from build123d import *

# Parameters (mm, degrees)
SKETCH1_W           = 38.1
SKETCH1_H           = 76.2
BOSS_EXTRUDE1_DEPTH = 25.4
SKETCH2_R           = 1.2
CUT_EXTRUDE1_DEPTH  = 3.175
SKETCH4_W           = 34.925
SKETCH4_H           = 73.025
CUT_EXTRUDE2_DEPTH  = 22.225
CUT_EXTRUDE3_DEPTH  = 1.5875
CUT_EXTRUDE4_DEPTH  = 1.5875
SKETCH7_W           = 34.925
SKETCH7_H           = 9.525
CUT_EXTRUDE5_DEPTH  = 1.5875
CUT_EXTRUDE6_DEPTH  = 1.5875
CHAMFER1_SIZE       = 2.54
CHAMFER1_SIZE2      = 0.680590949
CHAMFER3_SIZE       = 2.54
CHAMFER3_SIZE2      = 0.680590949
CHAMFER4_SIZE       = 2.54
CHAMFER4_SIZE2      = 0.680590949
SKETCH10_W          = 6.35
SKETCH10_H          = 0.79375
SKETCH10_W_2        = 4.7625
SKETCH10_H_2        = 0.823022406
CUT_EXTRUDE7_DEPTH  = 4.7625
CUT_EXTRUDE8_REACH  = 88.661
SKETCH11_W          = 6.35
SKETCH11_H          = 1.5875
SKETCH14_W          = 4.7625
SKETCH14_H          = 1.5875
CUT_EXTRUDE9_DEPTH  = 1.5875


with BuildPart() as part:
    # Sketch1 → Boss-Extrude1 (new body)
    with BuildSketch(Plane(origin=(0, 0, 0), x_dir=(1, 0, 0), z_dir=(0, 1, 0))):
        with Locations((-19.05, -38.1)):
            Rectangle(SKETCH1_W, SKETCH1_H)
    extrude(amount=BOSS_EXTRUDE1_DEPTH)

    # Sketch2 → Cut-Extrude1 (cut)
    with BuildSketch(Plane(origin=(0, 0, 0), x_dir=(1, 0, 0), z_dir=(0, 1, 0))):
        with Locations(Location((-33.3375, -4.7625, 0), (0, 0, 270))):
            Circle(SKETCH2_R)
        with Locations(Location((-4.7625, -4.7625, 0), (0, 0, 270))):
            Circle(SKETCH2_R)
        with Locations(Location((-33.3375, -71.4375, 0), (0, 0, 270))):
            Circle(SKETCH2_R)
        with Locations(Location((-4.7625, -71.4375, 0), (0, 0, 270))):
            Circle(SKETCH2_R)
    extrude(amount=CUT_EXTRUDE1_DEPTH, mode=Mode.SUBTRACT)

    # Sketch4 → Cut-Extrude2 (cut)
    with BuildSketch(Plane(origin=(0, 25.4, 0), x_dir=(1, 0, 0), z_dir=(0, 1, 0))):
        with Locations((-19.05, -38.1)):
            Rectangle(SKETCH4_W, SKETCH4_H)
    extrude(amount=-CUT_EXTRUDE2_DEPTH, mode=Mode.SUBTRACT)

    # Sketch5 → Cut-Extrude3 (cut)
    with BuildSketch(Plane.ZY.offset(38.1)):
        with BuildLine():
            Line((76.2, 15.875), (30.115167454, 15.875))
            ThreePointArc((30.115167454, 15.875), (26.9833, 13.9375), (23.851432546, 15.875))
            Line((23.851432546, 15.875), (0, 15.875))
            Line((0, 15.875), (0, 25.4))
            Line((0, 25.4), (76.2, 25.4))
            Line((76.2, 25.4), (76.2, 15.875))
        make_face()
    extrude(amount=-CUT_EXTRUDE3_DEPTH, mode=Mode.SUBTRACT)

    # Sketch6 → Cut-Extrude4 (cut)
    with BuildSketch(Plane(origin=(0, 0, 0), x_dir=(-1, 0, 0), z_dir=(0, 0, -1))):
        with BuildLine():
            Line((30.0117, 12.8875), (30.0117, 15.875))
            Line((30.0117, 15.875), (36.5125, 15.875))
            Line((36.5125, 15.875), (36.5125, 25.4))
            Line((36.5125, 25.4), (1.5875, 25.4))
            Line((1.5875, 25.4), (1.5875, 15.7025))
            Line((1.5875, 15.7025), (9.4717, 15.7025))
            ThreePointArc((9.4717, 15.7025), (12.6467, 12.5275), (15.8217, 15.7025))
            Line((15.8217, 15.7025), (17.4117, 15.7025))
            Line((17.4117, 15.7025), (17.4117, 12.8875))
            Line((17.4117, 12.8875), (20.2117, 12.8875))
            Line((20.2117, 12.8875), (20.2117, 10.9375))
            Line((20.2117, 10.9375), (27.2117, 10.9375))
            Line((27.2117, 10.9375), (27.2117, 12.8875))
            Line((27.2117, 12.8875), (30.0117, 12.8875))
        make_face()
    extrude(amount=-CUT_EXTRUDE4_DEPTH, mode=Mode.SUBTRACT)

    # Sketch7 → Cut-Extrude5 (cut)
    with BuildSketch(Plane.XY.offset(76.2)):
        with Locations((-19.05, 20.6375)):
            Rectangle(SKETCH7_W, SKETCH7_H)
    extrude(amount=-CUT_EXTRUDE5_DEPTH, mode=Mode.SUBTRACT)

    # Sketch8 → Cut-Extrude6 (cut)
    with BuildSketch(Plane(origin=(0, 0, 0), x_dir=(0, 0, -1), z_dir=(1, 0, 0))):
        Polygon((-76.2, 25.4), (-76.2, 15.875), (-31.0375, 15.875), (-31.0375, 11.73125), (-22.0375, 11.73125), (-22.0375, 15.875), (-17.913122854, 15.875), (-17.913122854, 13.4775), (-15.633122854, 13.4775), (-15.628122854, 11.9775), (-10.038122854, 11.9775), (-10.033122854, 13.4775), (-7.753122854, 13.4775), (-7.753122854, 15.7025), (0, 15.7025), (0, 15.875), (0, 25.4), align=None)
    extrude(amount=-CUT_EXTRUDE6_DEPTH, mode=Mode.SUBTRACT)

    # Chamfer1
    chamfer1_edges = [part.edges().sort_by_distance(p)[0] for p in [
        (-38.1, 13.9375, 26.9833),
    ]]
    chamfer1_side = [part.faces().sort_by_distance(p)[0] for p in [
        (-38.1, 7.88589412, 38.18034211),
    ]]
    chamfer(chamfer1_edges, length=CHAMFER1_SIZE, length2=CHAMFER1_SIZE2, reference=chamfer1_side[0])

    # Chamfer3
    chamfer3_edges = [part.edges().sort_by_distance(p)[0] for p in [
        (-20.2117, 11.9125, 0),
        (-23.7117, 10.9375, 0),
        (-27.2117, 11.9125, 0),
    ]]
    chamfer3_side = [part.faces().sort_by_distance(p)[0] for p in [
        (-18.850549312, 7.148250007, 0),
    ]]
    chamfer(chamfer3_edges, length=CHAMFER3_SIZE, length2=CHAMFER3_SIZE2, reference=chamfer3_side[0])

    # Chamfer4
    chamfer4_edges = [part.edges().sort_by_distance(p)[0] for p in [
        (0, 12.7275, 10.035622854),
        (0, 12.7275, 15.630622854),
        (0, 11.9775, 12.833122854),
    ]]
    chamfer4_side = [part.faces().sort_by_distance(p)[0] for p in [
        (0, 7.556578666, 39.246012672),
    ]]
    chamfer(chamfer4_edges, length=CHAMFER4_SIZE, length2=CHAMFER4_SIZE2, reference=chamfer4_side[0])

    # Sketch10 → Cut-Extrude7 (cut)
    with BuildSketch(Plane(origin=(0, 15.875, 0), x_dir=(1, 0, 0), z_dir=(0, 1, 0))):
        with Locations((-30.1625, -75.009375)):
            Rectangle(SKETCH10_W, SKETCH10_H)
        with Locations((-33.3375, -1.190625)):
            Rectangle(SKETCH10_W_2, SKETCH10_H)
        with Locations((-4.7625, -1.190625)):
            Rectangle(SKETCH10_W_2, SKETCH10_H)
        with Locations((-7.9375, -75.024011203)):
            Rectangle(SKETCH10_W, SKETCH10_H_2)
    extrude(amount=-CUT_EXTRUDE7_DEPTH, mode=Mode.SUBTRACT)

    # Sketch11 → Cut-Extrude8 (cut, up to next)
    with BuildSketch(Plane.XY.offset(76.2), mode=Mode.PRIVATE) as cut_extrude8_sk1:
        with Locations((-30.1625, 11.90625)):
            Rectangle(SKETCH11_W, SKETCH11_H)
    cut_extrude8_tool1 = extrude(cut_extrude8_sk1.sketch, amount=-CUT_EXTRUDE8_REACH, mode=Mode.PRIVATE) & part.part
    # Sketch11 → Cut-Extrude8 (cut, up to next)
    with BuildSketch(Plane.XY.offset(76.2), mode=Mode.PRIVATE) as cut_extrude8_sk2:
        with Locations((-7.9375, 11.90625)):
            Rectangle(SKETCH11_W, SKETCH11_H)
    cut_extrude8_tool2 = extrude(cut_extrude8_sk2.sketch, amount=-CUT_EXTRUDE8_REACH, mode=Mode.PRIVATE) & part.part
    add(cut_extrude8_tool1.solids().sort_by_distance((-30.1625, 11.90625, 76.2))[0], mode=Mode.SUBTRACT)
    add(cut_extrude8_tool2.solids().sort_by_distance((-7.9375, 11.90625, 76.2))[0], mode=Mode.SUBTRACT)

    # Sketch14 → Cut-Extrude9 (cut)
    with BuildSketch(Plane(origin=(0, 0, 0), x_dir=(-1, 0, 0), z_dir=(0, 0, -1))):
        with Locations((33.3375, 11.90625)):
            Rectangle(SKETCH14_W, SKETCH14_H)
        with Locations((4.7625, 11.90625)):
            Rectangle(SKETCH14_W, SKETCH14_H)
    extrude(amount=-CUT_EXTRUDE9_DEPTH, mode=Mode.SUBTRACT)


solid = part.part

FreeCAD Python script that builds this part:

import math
import FreeCAD as App
import Part
import Sketcher
Q = App.Units.Quantity


def edges_at(feature, points):
    """Names of the edges that pass closest to the given points."""
    edges = feature.Shape.Edges
    near = lambda p: min(range(len(edges)), key=lambda i: edges[i].distToShape(Part.Vertex(*p))[0])
    return sorted({f"Edge{near(p) + 1}" for p in points})

doc = App.newDocument("Part")
body = doc.addObject("PartDesign::Body", "Body")

# Sketch on XZ plane
sketch1 = body.newObject("Sketcher::SketchObject", "Sketch")
sketch1.AttachmentSupport = (doc.getObject("XZ_Plane"), [""])
sketch1.MapMode = "FlatFace"
sketch1.addGeometry(Part.LineSegment(App.Vector(-38.1, 0, 0), App.Vector(-38.1, 76.2, 0)), False)
sketch1.addGeometry(Part.LineSegment(App.Vector(-38.1, 76.2, 0), App.Vector(0, 76.2, 0)), False)
sketch1.addGeometry(Part.LineSegment(App.Vector(0, 76.2, 0), App.Vector(0, 0, 0)), False)
sketch1.addGeometry(Part.LineSegment(App.Vector(0, 0, 0), App.Vector(-38.1, 0, 0)), False)
sketch1.addConstraint(Sketcher.Constraint("Coincident", 0, 2, 1, 1))
sketch1.addConstraint(Sketcher.Constraint("Coincident", 1, 2, 2, 1))
sketch1.addConstraint(Sketcher.Constraint("Coincident", 2, 2, 3, 1))
sketch1.addConstraint(Sketcher.Constraint("Coincident", 3, 2, 0, 1))
sketch1.addConstraint(Sketcher.Constraint("Vertical", 0))
sketch1.addConstraint(Sketcher.Constraint("Horizontal", 1))
sketch1.addConstraint(Sketcher.Constraint("Vertical", 2))
sketch1.addConstraint(Sketcher.Constraint("Horizontal", 3))
sketch1.addConstraint(Sketcher.Constraint("Coincident", 2, 2, -1, 1))
sketch1.addConstraint(Sketcher.Constraint("DistanceY", 0, 1, 0, 2, Q("3 in")))
sketch1.addConstraint(Sketcher.Constraint("DistanceX", 1, 1, 1, 2, Q("1.5 in")))
pad1 = body.newObject("PartDesign::Pad", "Pad")
pad1.Profile = sketch1
pad1.Length = Q("1 in")
pad1.Reversed = True

# Sketch on XZ plane
sketch2 = body.newObject("Sketcher::SketchObject", "Sketch001")
sketch2.AttachmentSupport = (doc.getObject("XZ_Plane"), [""])
sketch2.MapMode = "FlatFace"
sketch2.addGeometry(Part.Circle(App.Vector(-33.3375, 4.7625, 0), App.Vector(0, 0, 1), 1.2), False)
sketch2.addGeometry(Part.Circle(App.Vector(-4.7625, 4.7625, 0), App.Vector(0, 0, 1), 1.2), False)
sketch2.addGeometry(Part.Circle(App.Vector(-33.3375, 71.4375, 0), App.Vector(0, 0, 1), 1.2), False)
sketch2.addGeometry(Part.Circle(App.Vector(-4.7625, 71.4375, 0), App.Vector(0, 0, 1), 1.2), False)
sketch2.addConstraint(Sketcher.Constraint("Equal", 0, 1))
sketch2.addConstraint(Sketcher.Constraint("Equal", 1, 2))
sketch2.addConstraint(Sketcher.Constraint("Equal", 2, 3))
sketch2.addConstraint(Sketcher.Constraint("Horizontal", 0, 3, 1, 3))
sketch2.addConstraint(Sketcher.Constraint("Horizontal", 2, 3, 3, 3))
sketch2.addConstraint(Sketcher.Constraint("Vertical", 0, 3, 2, 3))
sketch2.addConstraint(Sketcher.Constraint("Vertical", 1, 3, 3, 3))
sketch2.addConstraint(Sketcher.Constraint("Diameter", 0, 2.4))
sketch2.addConstraint(Sketcher.Constraint("DistanceX", 0, 3, -1, 1, Q("1.3125 in")))
sketch2.addConstraint(Sketcher.Constraint("DistanceY", -1, 1, 0, 3, Q("0.1875 in")))
sketch2.addConstraint(Sketcher.Constraint("DistanceX", 1, 3, -1, 1, Q("0.1875 in")))
sketch2.addConstraint(Sketcher.Constraint("DistanceY", -1, 1, 2, 3, Q("2.8125 in")))
pocket1 = body.newObject("PartDesign::Pocket", "Pocket")
pocket1.Profile = sketch2
pocket1.Length = Q("0.125 in")

# Sketch on XZ plane
sketch3 = body.newObject("Sketcher::SketchObject", "Sketch002")
sketch3.AttachmentSupport = (doc.getObject("XZ_Plane"), [""])
sketch3.MapMode = "FlatFace"
sketch3.AttachmentOffset = App.Placement(App.Vector(0, 0, -1 * 25.4), App.Rotation())
sketch3.addGeometry(Part.LineSegment(App.Vector(-36.5125, 1.5875, 0), App.Vector(-36.5125, 74.6125, 0)), False)
sketch3.addGeometry(Part.LineSegment(App.Vector(-36.5125, 74.6125, 0), App.Vector(-1.5875, 74.6125, 0)), False)
sketch3.addGeometry(Part.LineSegment(App.Vector(-1.5875, 74.6125, 0), App.Vector(-1.5875, 1.5875, 0)), False)
sketch3.addGeometry(Part.LineSegment(App.Vector(-1.5875, 1.5875, 0), App.Vector(-36.5125, 1.5875, 0)), False)
sketch3.addConstraint(Sketcher.Constraint("Coincident", 0, 2, 1, 1))
sketch3.addConstraint(Sketcher.Constraint("Coincident", 1, 2, 2, 1))
sketch3.addConstraint(Sketcher.Constraint("Coincident", 2, 2, 3, 1))
sketch3.addConstraint(Sketcher.Constraint("Coincident", 3, 2, 0, 1))
sketch3.addConstraint(Sketcher.Constraint("Vertical", 0))
sketch3.addConstraint(Sketcher.Constraint("Horizontal", 1))
sketch3.addConstraint(Sketcher.Constraint("Vertical", 2))
sketch3.addConstraint(Sketcher.Constraint("Horizontal", 3))
sketch3.addConstraint(Sketcher.Constraint("DistanceX", 1, 1, 1, 2, Q("1.375 in")))
sketch3.addConstraint(Sketcher.Constraint("DistanceY", 0, 1, 0, 2, Q("2.875 in")))
sketch3.addConstraint(Sketcher.Constraint("DistanceX", 0, 2, -1, 1, Q("1.4375 in")))
sketch3.addConstraint(Sketcher.Constraint("DistanceY", -1, 1, 0, 2, Q("2.9375 in")))
pocket2 = body.newObject("PartDesign::Pocket", "Pocket001")
pocket2.Profile = sketch3
pocket2.Length = Q("0.875 in")
pocket2.Reversed = True

# Sketch on YZ plane
sketch4 = body.newObject("Sketcher::SketchObject", "Sketch003")
sketch4.AttachmentSupport = (doc.getObject("YZ_Plane"), [""])
sketch4.MapMode = "FlatFace"
sketch4.AttachmentOffset = App.Placement(App.Vector(0, 0, -1.5 * 25.4), App.Rotation())
sketch4.addGeometry(Part.LineSegment(App.Vector(15.875, 30.115167, 0), App.Vector(15.875, 76.2, 0)), False)
sketch4.addGeometry(Part.LineSegment(App.Vector(15.875, 76.2, 0), App.Vector(25.4, 76.2, 0)), False)
sketch4.addGeometry(Part.LineSegment(App.Vector(25.4, 76.2, 0), App.Vector(25.4, 0, 0)), False)
sketch4.addGeometry(Part.LineSegment(App.Vector(25.4, 0, 0), App.Vector(15.875, 0, 0)), False)
sketch4.addGeometry(Part.LineSegment(App.Vector(15.875, 0, 0), App.Vector(15.875, 23.851433, 0)), False)
sketch4.addGeometry(Part.ArcOfCircle(Part.Circle(App.Vector(17.4375, 26.9833, 0), App.Vector(0, 0, 1), 3.5), math.radians(116.514775), math.radians(243.485225)), False)
sketch4.addConstraint(Sketcher.Constraint("Coincident", 0, 2, 1, 1))
sketch4.addConstraint(Sketcher.Constraint("Coincident", 1, 2, 2, 1))
sketch4.addConstraint(Sketcher.Constraint("Coincident", 2, 2, 3, 1))
sketch4.addConstraint(Sketcher.Constraint("Coincident", 3, 2, 4, 1))
sketch4.addConstraint(Sketcher.Constraint("Coincident", 4, 2, 5, 2))
sketch4.addConstraint(Sketcher.Constraint("Coincident", 5, 1, 0, 1))
sketch4.addConstraint(Sketcher.Constraint("Vertical", 0))
sketch4.addConstraint(Sketcher.Constraint("Horizontal", 1))
sketch4.addConstraint(Sketcher.Constraint("Vertical", 2))
sketch4.addConstraint(Sketcher.Constraint("Horizontal", 3))
sketch4.addConstraint(Sketcher.Constraint("Vertical", 4))
sketch4.addConstraint(Sketcher.Constraint("PointOnObject", 2, 2, -1))
sketch4.addConstraint(Sketcher.Constraint("Vertical", 0, 2, 3, 2))
sketch4.addConstraint(Sketcher.Constraint("DistanceY", 2, 2, 2, 1, Q("3 in")))
sketch4.addConstraint(Sketcher.Constraint("DistanceX", -1, 1, 1, 2, Q("1 in")))
sketch4.addConstraint(Sketcher.Constraint("DistanceX", 1, 1, 1, 2, Q("0.375 in")))
sketch4.addConstraint(Sketcher.Constraint("Radius", 5, 3.5))
sketch4.addConstraint(Sketcher.Constraint("DistanceX", -1, 1, 5, 3, 17.4375))
sketch4.addConstraint(Sketcher.Constraint("DistanceY", -1, 1, 5, 3, 26.9833))
pocket3 = body.newObject("PartDesign::Pocket", "Pocket002")
pocket3.Profile = sketch4
pocket3.Length = Q("0.0625 in")
pocket3.Reversed = True

# Sketch on XY plane
sketch5 = body.newObject("Sketcher::SketchObject", "Sketch004")
sketch5.AttachmentSupport = (doc.getObject("XY_Plane"), [""])
sketch5.MapMode = "FlatFace"
sketch5.addGeometry(Part.LineSegment(App.Vector(-30.0117, 12.8875, 0), App.Vector(-30.0117, 15.875, 0)), False)
sketch5.addGeometry(Part.LineSegment(App.Vector(-30.0117, 15.875, 0), App.Vector(-36.5125, 15.875, 0)), False)
sketch5.addGeometry(Part.LineSegment(App.Vector(-36.5125, 15.875, 0), App.Vector(-36.5125, 25.4, 0)), False)
sketch5.addGeometry(Part.LineSegment(App.Vector(-36.5125, 25.4, 0), App.Vector(-1.5875, 25.4, 0)), False)
sketch5.addGeometry(Part.LineSegment(App.Vector(-1.5875, 25.4, 0), App.Vector(-1.5875, 15.7025, 0)), False)
sketch5.addGeometry(Part.LineSegment(App.Vector(-1.5875, 15.7025, 0), App.Vector(-9.4717, 15.7025, 0)), False)
sketch5.addGeometry(Part.ArcOfCircle(Part.Circle(App.Vector(-12.6467, 15.7025, 0), App.Vector(0, 0, 1), 3.175), math.radians(180), math.radians(360)), False)
sketch5.addGeometry(Part.LineSegment(App.Vector(-15.8217, 15.7025, 0), App.Vector(-17.4117, 15.7025, 0)), False)
sketch5.addGeometry(Part.LineSegment(App.Vector(-17.4117, 15.7025, 0), App.Vector(-17.4117, 12.8875, 0)), False)
sketch5.addGeometry(Part.LineSegment(App.Vector(-17.4117, 12.8875, 0), App.Vector(-20.2117, 12.8875, 0)), False)
sketch5.addGeometry(Part.LineSegment(App.Vector(-20.2117, 12.8875, 0), App.Vector(-20.2117, 10.9375, 0)), False)
sketch5.addGeometry(Part.LineSegment(App.Vector(-20.2117, 10.9375, 0), App.Vector(-27.2117, 10.9375, 0)), False)
sketch5.addGeometry(Part.LineSegment(App.Vector(-27.2117, 10.9375, 0), App.Vector(-27.2117, 12.8875, 0)), False)
sketch5.addGeometry(Part.LineSegment(App.Vector(-27.2117, 12.8875, 0), App.Vector(-30.0117, 12.8875, 0)), False)
sketch5.addConstraint(Sketcher.Constraint("Coincident", 0, 2, 1, 1))
sketch5.addConstraint(Sketcher.Constraint("Coincident", 1, 2, 2, 1))
sketch5.addConstraint(Sketcher.Constraint("Coincident", 2, 2, 3, 1))
sketch5.addConstraint(Sketcher.Constraint("Coincident", 3, 2, 4, 1))
sketch5.addConstraint(Sketcher.Constraint("Coincident", 4, 2, 5, 1))
sketch5.addConstraint(Sketcher.Constraint("Coincident", 5, 2, 6, 2))
sketch5.addConstraint(Sketcher.Constraint("Coincident", 6, 1, 7, 1))
sketch5.addConstraint(Sketcher.Constraint("Coincident", 7, 2, 8, 1))
sketch5.addConstraint(Sketcher.Constraint("Coincident", 8, 2, 9, 1))
sketch5.addConstraint(Sketcher.Constraint("Coincident", 9, 2, 10, 1))
sketch5.addConstraint(Sketcher.Constraint("Coincident", 10, 2, 11, 1))
sketch5.addConstraint(Sketcher.Constraint("Coincident", 11, 2, 12, 1))
sketch5.addConstraint(Sketcher.Constraint("Coincident", 12, 2, 13, 1))
sketch5.addConstraint(Sketcher.Constraint("Coincident", 13, 2, 0, 1))
sketch5.addConstraint(Sketcher.Constraint("Vertical", 0))
sketch5.addConstraint(Sketcher.Constraint("Horizontal", 1))
sketch5.addConstraint(Sketcher.Constraint("Vertical", 2))
sketch5.addConstraint(Sketcher.Constraint("Horizontal", 3))
sketch5.addConstraint(Sketcher.Constraint("Vertical", 4))
sketch5.addConstraint(Sketcher.Constraint("Horizontal", 5))
sketch5.addConstraint(Sketcher.Constraint("Horizontal", 7))
sketch5.addConstraint(Sketcher.Constraint("Vertical", 8))
sketch5.addConstraint(Sketcher.Constraint("Horizontal", 9))
sketch5.addConstraint(Sketcher.Constraint("Vertical", 10))
sketch5.addConstraint(Sketcher.Constraint("Horizontal", 11))
sketch5.addConstraint(Sketcher.Constraint("Vertical", 12))
sketch5.addConstraint(Sketcher.Constraint("Horizontal", 13))
sketch5.addConstraint(Sketcher.Constraint("Horizontal", 6, 3, 4, 2))
sketch5.addConstraint(Sketcher.Constraint("Horizontal", 5, 2, 6, 1))
sketch5.addConstraint(Sketcher.Constraint("Horizontal", 9, 2, 12, 2))
sketch5.addConstraint(Sketcher.Constraint("Equal", 9, 13))
sketch5.addConstraint(Sketcher.Constraint("DistanceY", -1, 1, 2, 2, Q("1 in")))
sketch5.addConstraint(Sketcher.Constraint("Radius", 6, Q("0.125 in")))
sketch5.addConstraint(Sketcher.Constraint("DistanceX", 3, 1, 3, 2, Q("1.375 in")))
sketch5.addConstraint(Sketcher.Constraint("DistanceY", 2, 1, 2, 2, Q("0.375 in")))
sketch5.addConstraint(Sketcher.Constraint("DistanceX", 1, 2, -1, 1, Q("1.4375 in")))
sketch5.addConstraint(Sketcher.Constraint("DistanceX", 7, 2, 4, 2, Q("0.623 in")))
sketch5.addConstraint(Sketcher.Constraint("DistanceX", 1, 2, 1, 1, 6.5008))
sketch5.addConstraint(Sketcher.Constraint("DistanceX", 5, 2, 5, 1, 7.8842))
sketch5.addConstraint(Sketcher.Constraint("DistanceX", 9, 2, 9, 1, 2.8))
sketch5.addConstraint(Sketcher.Constraint("DistanceY", 0, 1, 0, 2, 2.9875))
sketch5.addConstraint(Sketcher.Constraint("DistanceY", 4, 2, 4, 1, 9.6975))
sketch5.addConstraint(Sketcher.Constraint("DistanceY", 10, 2, 10, 1, 1.95))
pocket4 = body.newObject("PartDesign::Pocket", "Pocket003")
pocket4.Profile = sketch5
pocket4.Length = Q("0.0625 in")
pocket4.Reversed = True

# Sketch on XY plane
sketch6 = body.newObject("Sketcher::SketchObject", "Sketch005")
sketch6.AttachmentSupport = (doc.getObject("XY_Plane"), [""])
sketch6.MapMode = "FlatFace"
sketch6.AttachmentOffset = App.Placement(App.Vector(0, 0, 3 * 25.4), App.Rotation())
sketch6.addGeometry(Part.LineSegment(App.Vector(-36.5125, 25.4, 0), App.Vector(-36.5125, 15.875, 0)), False)
sketch6.addGeometry(Part.LineSegment(App.Vector(-36.5125, 15.875, 0), App.Vector(-1.5875, 15.875, 0)), False)
sketch6.addGeometry(Part.LineSegment(App.Vector(-1.5875, 15.875, 0), App.Vector(-1.5875, 25.4, 0)), False)
sketch6.addGeometry(Part.LineSegment(App.Vector(-1.5875, 25.4, 0), App.Vector(-36.5125, 25.4, 0)), False)
sketch6.addConstraint(Sketcher.Constraint("Coincident", 0, 2, 1, 1))
sketch6.addConstraint(Sketcher.Constraint("Coincident", 1, 2, 2, 1))
sketch6.addConstraint(Sketcher.Constraint("Coincident", 2, 2, 3, 1))
sketch6.addConstraint(Sketcher.Constraint("Coincident", 3, 2, 0, 1))
sketch6.addConstraint(Sketcher.Constraint("Vertical", 0))
sketch6.addConstraint(Sketcher.Constraint("Horizontal", 1))
sketch6.addConstraint(Sketcher.Constraint("Vertical", 2))
sketch6.addConstraint(Sketcher.Constraint("Horizontal", 3))
sketch6.addConstraint(Sketcher.Constraint("DistanceY", -1, 1, 2, 2, Q("1 in")))
sketch6.addConstraint(Sketcher.Constraint("DistanceX", 1, 1, 1, 2, Q("1.375 in")))
sketch6.addConstraint(Sketcher.Constraint("DistanceY", 0, 2, 0, 1, Q("0.375 in")))
sketch6.addConstraint(Sketcher.Constraint("DistanceX", 0, 2, -1, 1, Q("1.4375 in")))
pocket5 = body.newObject("PartDesign::Pocket", "Pocket004")
pocket5.Profile = sketch6
pocket5.Length = Q("0.0625 in")

# Sketch on YZ plane
sketch7 = body.newObject("Sketcher::SketchObject", "Sketch006")
sketch7.AttachmentSupport = (doc.getObject("YZ_Plane"), [""])
sketch7.MapMode = "FlatFace"
sketch7.addGeometry(Part.LineSegment(App.Vector(25.4, 76.2, 0), App.Vector(15.875, 76.2, 0)), False)
sketch7.addGeometry(Part.LineSegment(App.Vector(15.875, 76.2, 0), App.Vector(15.875, 31.0375, 0)), False)
sketch7.addGeometry(Part.LineSegment(App.Vector(15.875, 31.0375, 0), App.Vector(11.73125, 31.0375, 0)), False)
sketch7.addGeometry(Part.LineSegment(App.Vector(11.73125, 31.0375, 0), App.Vector(11.73125, 22.0375, 0)), False)
sketch7.addGeometry(Part.LineSegment(App.Vector(11.73125, 22.0375, 0), App.Vector(15.875, 22.0375, 0)), False)
sketch7.addGeometry(Part.LineSegment(App.Vector(15.875, 22.0375, 0), App.Vector(15.875, 17.913123, 0)), False)
sketch7.addGeometry(Part.LineSegment(App.Vector(15.875, 17.913123, 0), App.Vector(13.4775, 17.913123, 0)), False)
sketch7.addGeometry(Part.LineSegment(App.Vector(13.4775, 17.913123, 0), App.Vector(13.4775, 15.633123, 0)), False)
sketch7.addGeometry(Part.LineSegment(App.Vector(13.4775, 15.633123, 0), App.Vector(11.9775, 15.628123, 0)), False)
sketch7.addGeometry(Part.LineSegment(App.Vector(11.9775, 15.628123, 0), App.Vector(11.9775, 10.038123, 0)), False)
sketch7.addGeometry(Part.LineSegment(App.Vector(11.9775, 10.038123, 0), App.Vector(13.4775, 10.033123, 0)), False)
sketch7.addGeometry(Part.LineSegment(App.Vector(13.4775, 10.033123, 0), App.Vector(13.4775, 7.753123, 0)), False)
sketch7.addGeometry(Part.LineSegment(App.Vector(13.4775, 7.753123, 0), App.Vector(15.7025, 7.753123, 0)), False)
sketch7.addGeometry(Part.LineSegment(App.Vector(15.7025, 7.753123, 0), App.Vector(15.7025, 0, 0)), False)
sketch7.addGeometry(Part.LineSegment(App.Vector(15.7025, 0, 0), App.Vector(25.4, 0, 0)), False)
sketch7.addGeometry(Part.LineSegment(App.Vector(25.4, 0, 0), App.Vector(25.4, 76.2, 0)), False)
sketch7.addConstraint(Sketcher.Constraint("Coincident", 0, 2, 1, 1))
sketch7.addConstraint(Sketcher.Constraint("Coincident", 1, 2, 2, 1))
sketch7.addConstraint(Sketcher.Constraint("Coincident", 2, 2, 3, 1))
sketch7.addConstraint(Sketcher.Constraint("Coincident", 3, 2, 4, 1))
sketch7.addConstraint(Sketcher.Constraint("Coincident", 4, 2, 5, 1))
sketch7.addConstraint(Sketcher.Constraint("Coincident", 5, 2, 6, 1))
sketch7.addConstraint(Sketcher.Constraint("Coincident", 6, 2, 7, 1))
sketch7.addConstraint(Sketcher.Constraint("Coincident", 7, 2, 8, 1))
sketch7.addConstraint(Sketcher.Constraint("Coincident", 8, 2, 9, 1))
sketch7.addConstraint(Sketcher.Constraint("Coincident", 9, 2, 10, 1))
sketch7.addConstraint(Sketcher.Constraint("Coincident", 10, 2, 11, 1))
sketch7.addConstraint(Sketcher.Constraint("Coincident", 11, 2, 12, 1))
sketch7.addConstraint(Sketcher.Constraint("Coincident", 12, 2, 13, 1))
sketch7.addConstraint(Sketcher.Constraint("Coincident", 13, 2, 14, 1))
sketch7.addConstraint(Sketcher.Constraint("Coincident", 14, 2, 15, 1))
sketch7.addConstraint(Sketcher.Constraint("Coincident", 15, 2, 0, 1))
sketch7.addConstraint(Sketcher.Constraint("Horizontal", 0))
sketch7.addConstraint(Sketcher.Constraint("Vertical", 1))
sketch7.addConstraint(Sketcher.Constraint("Horizontal", 2))
sketch7.addConstraint(Sketcher.Constraint("Vertical", 3))
sketch7.addConstraint(Sketcher.Constraint("Horizontal", 4))
sketch7.addConstraint(Sketcher.Constraint("Vertical", 5))
sketch7.addConstraint(Sketcher.Constraint("Horizontal", 6))
sketch7.addConstraint(Sketcher.Constraint("Vertical", 7))
sketch7.addConstraint(Sketcher.Constraint("Vertical", 9))
sketch7.addConstraint(Sketcher.Constraint("Vertical", 11))
sketch7.addConstraint(Sketcher.Constraint("Horizontal", 12))
sketch7.addConstraint(Sketcher.Constraint("Vertical", 13))
sketch7.addConstraint(Sketcher.Constraint("Horizontal", 14))
sketch7.addConstraint(Sketcher.Constraint("Vertical", 15))
sketch7.addConstraint(Sketcher.Constraint("PointOnObject", 13, 2, -1))
sketch7.addConstraint(Sketcher.Constraint("Vertical", 1, 2, 4, 2))
sketch7.addConstraint(Sketcher.Constraint("Vertical", 7, 2, 10, 2))
sketch7.addConstraint(Sketcher.Constraint("Equal", 7, 11))
sketch7.addConstraint(Sketcher.Constraint("DistanceY", 15, 1, 15, 2, Q("3 in")))
sketch7.addConstraint(Sketcher.Constraint("DistanceX", -1, 1, 14, 2, Q("1 in")))
sketch7.addConstraint(Sketcher.Constraint("DistanceY", 11, 2, 6, 2, Q("0.4 in")))
sketch7.addConstraint(Sketcher.Constraint("DistanceX", 0, 2, 0, 1, Q("0.375 in")))
sketch7.addConstraint(Sketcher.Constraint("DistanceX", 6, 2, 6, 1, 2.3975))
sketch7.addConstraint(Sketcher.Constraint("DistanceX", 12, 1, 12, 2, 2.225))
sketch7.addConstraint(Sketcher.Constraint("DistanceY", 1, 2, 1, 1, 45.1625))
sketch7.addConstraint(Sketcher.Constraint("DistanceY", 3, 2, 3, 1, 9.0))
sketch7.addConstraint(Sketcher.Constraint("DistanceY", 7, 2, 7, 1, 2.28))
sketch7.addConstraint(Sketcher.Constraint("DistanceY", 9, 2, 9, 1, 5.59))
sketch7.addConstraint(Sketcher.Constraint("DistanceX", 2, 2, 2, 1, 4.14375))
sketch7.addConstraint(Sketcher.Constraint("DistanceX", -1, 1, 8, 2, 11.9775))
sketch7.addConstraint(Sketcher.Constraint("DistanceY", 8, 2, 7, 2, 0.005))
sketch7.addConstraint(Sketcher.Constraint("DistanceY", 5, 2, 5, 1, 4.124377))
pocket6 = body.newObject("PartDesign::Pocket", "Pocket005")
pocket6.Profile = sketch7
pocket6.Length = Q("0.0625 in")
doc.recompute()

chamfer = body.newObject("PartDesign::Chamfer", "Chamfer")
chamfer.Base = (pocket6, edges_at(pocket6, [(-38.1, 13.938, 26.983)]))
chamfer.ChamferType = "Two distances"
chamfer.Size = Q("0.1 in")
chamfer.Size2 = 0.680591
doc.recompute()

chamfer2 = body.newObject("PartDesign::Chamfer", "Chamfer001")
chamfer2.Base = (chamfer, edges_at(chamfer, [(-20.212, 11.912, 0), (-23.712, 10.938, 0), (-27.212, 11.912, 0)]))
chamfer2.ChamferType = "Two distances"
chamfer2.Size = Q("0.1 in")
chamfer2.Size2 = 0.680591
doc.recompute()

chamfer3 = body.newObject("PartDesign::Chamfer", "Chamfer002")
chamfer3.Base = (chamfer2, edges_at(chamfer2, [(0, 12.727, 10.036), (0, 12.727, 15.631), (0, 11.977, 12.833)]))
chamfer3.ChamferType = "Two distances"
chamfer3.Size = Q("0.1 in")
chamfer3.Size2 = 0.680591

# Sketch on XZ plane
sketch8 = body.newObject("Sketcher::SketchObject", "Sketch007")
sketch8.AttachmentSupport = (doc.getObject("XZ_Plane"), [""])
sketch8.MapMode = "FlatFace"
sketch8.AttachmentOffset = App.Placement(App.Vector(0, 0, -0.625 * 25.4), App.Rotation())
sketch8.addGeometry(Part.LineSegment(App.Vector(-33.3375, 74.6125, 0), App.Vector(-33.3375, 75.40625, 0)), False)
sketch8.addGeometry(Part.LineSegment(App.Vector(-33.3375, 75.40625, 0), App.Vector(-26.9875, 75.40625, 0)), False)
sketch8.addGeometry(Part.LineSegment(App.Vector(-26.9875, 75.40625, 0), App.Vector(-26.9875, 74.6125, 0)), False)
sketch8.addGeometry(Part.LineSegment(App.Vector(-26.9875, 74.6125, 0), App.Vector(-33.3375, 74.6125, 0)), False)
sketch8.addGeometry(Part.LineSegment(App.Vector(-35.71875, 0.79375, 0), App.Vector(-35.71875, 1.5875, 0)), False)
sketch8.addGeometry(Part.LineSegment(App.Vector(-35.71875, 1.5875, 0), App.Vector(-30.95625, 1.5875, 0)), False)
sketch8.addGeometry(Part.LineSegment(App.Vector(-30.95625, 1.5875, 0), App.Vector(-30.95625, 0.79375, 0)), False)
sketch8.addGeometry(Part.LineSegment(App.Vector(-30.95625, 0.79375, 0), App.Vector(-35.71875, 0.79375, 0)), False)
sketch8.addGeometry(Part.LineSegment(App.Vector(-7.14375, 0.79375, 0), App.Vector(-7.14375, 1.5875, 0)), False)
sketch8.addGeometry(Part.LineSegment(App.Vector(-7.14375, 1.5875, 0), App.Vector(-2.38125, 1.5875, 0)), False)
sketch8.addGeometry(Part.LineSegment(App.Vector(-2.38125, 1.5875, 0), App.Vector(-2.38125, 0.79375, 0)), False)
sketch8.addGeometry(Part.LineSegment(App.Vector(-2.38125, 0.79375, 0), App.Vector(-7.14375, 0.79375, 0)), False)
sketch8.addGeometry(Part.LineSegment(App.Vector(-11.1125, 74.6125, 0), App.Vector(-11.1125, 75.435522, 0)), False)
sketch8.addGeometry(Part.LineSegment(App.Vector(-11.1125, 75.435522, 0), App.Vector(-4.7625, 75.435522, 0)), False)
sketch8.addGeometry(Part.LineSegment(App.Vector(-4.7625, 75.435522, 0), App.Vector(-4.7625, 74.6125, 0)), False)
sketch8.addGeometry(Part.LineSegment(App.Vector(-4.7625, 74.6125, 0), App.Vector(-11.1125, 74.6125, 0)), False)
sketch8.addConstraint(Sketcher.Constraint("Coincident", 0, 2, 1, 1))
sketch8.addConstraint(Sketcher.Constraint("Coincident", 1, 2, 2, 1))
sketch8.addConstraint(Sketcher.Constraint("Coincident", 2, 2, 3, 1))
sketch8.addConstraint(Sketcher.Constraint("Coincident", 3, 2, 0, 1))
sketch8.addConstraint(Sketcher.Constraint("Coincident", 4, 2, 5, 1))
sketch8.addConstraint(Sketcher.Constraint("Coincident", 5, 2, 6, 1))
sketch8.addConstraint(Sketcher.Constraint("Coincident", 6, 2, 7, 1))
sketch8.addConstraint(Sketcher.Constraint("Coincident", 7, 2, 4, 1))
sketch8.addConstraint(Sketcher.Constraint("Coincident", 8, 2, 9, 1))
sketch8.addConstraint(Sketcher.Constraint("Coincident", 9, 2, 10, 1))
sketch8.addConstraint(Sketcher.Constraint("Coincident", 10, 2, 11, 1))
sketch8.addConstraint(Sketcher.Constraint("Coincident", 11, 2, 8, 1))
sketch8.addConstraint(Sketcher.Constraint("Coincident", 12, 2, 13, 1))
sketch8.addConstraint(Sketcher.Constraint("Coincident", 13, 2, 14, 1))
sketch8.addConstraint(Sketcher.Constraint("Coincident", 14, 2, 15, 1))
sketch8.addConstraint(Sketcher.Constraint("Coincident", 15, 2, 12, 1))
sketch8.addConstraint(Sketcher.Constraint("Vertical", 0))
sketch8.addConstraint(Sketcher.Constraint("Horizontal", 1))
sketch8.addConstraint(Sketcher.Constraint("Vertical", 2))
sketch8.addConstraint(Sketcher.Constraint("Horizontal", 3))
sketch8.addConstraint(Sketcher.Constraint("Vertical", 4))
sketch8.addConstraint(Sketcher.Constraint("Horizontal", 5))
sketch8.addConstraint(Sketcher.Constraint("Vertical", 6))
sketch8.addConstraint(Sketcher.Constraint("Horizontal", 7))
sketch8.addConstraint(Sketcher.Constraint("Vertical", 8))
sketch8.addConstraint(Sketcher.Constraint("Horizontal", 9))
sketch8.addConstraint(Sketcher.Constraint("Vertical", 10))
sketch8.addConstraint(Sketcher.Constraint("Horizontal", 11))
sketch8.addConstraint(Sketcher.Constraint("Vertical", 12))
sketch8.addConstraint(Sketcher.Constraint("Horizontal", 13))
sketch8.addConstraint(Sketcher.Constraint("Vertical", 14))
sketch8.addConstraint(Sketcher.Constraint("Horizontal", 15))
sketch8.addConstraint(Sketcher.Constraint("Horizontal", 5, 2, 8, 2))
sketch8.addConstraint(Sketcher.Constraint("Horizontal", 7, 2, 10, 2))
sketch8.addConstraint(Sketcher.Constraint("Horizontal", 3, 2, 14, 2))
sketch8.addConstraint(Sketcher.Constraint("Equal", 7, 9))
sketch8.addConstraint(Sketcher.Constraint("Equal", 3, 13))
sketch8.addConstraint(Sketcher.Constraint("Equal", 2, 4))
sketch8.addConstraint(Sketcher.Constraint("DistanceX", 1, 1, 1, 2, Q("0.25 in")))
sketch8.addConstraint(Sketcher.Constraint("DistanceX", 5, 1, 5, 2, Q("0.1875 in")))
sketch8.addConstraint(Sketcher.Constraint("DistanceY", 0, 1, 0, 2, Q("0.03125 in")))
sketch8.addConstraint(Sketcher.Constraint("DistanceX", 0, 2, -1, 1, Q("1.3125 in")))
sketch8.addConstraint(Sketcher.Constraint("DistanceY", -1, 1, 0, 2, Q("2.96875 in")))
sketch8.addConstraint(Sketcher.Constraint("DistanceX", 4, 2, -1, 1, Q("1.40625 in")))
sketch8.addConstraint(Sketcher.Constraint("DistanceY", -1, 1, 4, 2, Q("0.0625 in")))
sketch8.addConstraint(Sketcher.Constraint("DistanceX", 8, 2, -1, 1, Q("0.28125 in")))
sketch8.addConstraint(Sketcher.Constraint("DistanceX", 12, 2, -1, 1, Q("0.4375 in")))
sketch8.addConstraint(Sketcher.Constraint("DistanceY", 12, 1, 12, 2, 0.823022))
pocket7 = body.newObject("PartDesign::Pocket", "Pocket006")
pocket7.Profile = sketch8
pocket7.Length = Q("0.1875 in")
pocket7.Reversed = True

# Sketch on XY plane
sketch9 = body.newObject("Sketcher::SketchObject", "Sketch008")
sketch9.AttachmentSupport = (doc.getObject("XY_Plane"), [""])
sketch9.MapMode = "FlatFace"
sketch9.AttachmentOffset = App.Placement(App.Vector(0, 0, 3 * 25.4), App.Rotation())
sketch9.addGeometry(Part.LineSegment(App.Vector(-33.3375, 12.7, 0), App.Vector(-33.3375, 11.1125, 0)), False)
sketch9.addGeometry(Part.LineSegment(App.Vector(-33.3375, 11.1125, 0), App.Vector(-26.9875, 11.1125, 0)), False)
sketch9.addGeometry(Part.LineSegment(App.Vector(-26.9875, 11.1125, 0), App.Vector(-26.9875, 12.7, 0)), False)
sketch9.addGeometry(Part.LineSegment(App.Vector(-26.9875, 12.7, 0), App.Vector(-33.3375, 12.7, 0)), False)
sketch9.addConstraint(Sketcher.Constraint("Coincident", 0, 2, 1, 1))
sketch9.addConstraint(Sketcher.Constraint("Coincident", 1, 2, 2, 1))
sketch9.addConstraint(Sketcher.Constraint("Coincident", 2, 2, 3, 1))
sketch9.addConstraint(Sketcher.Constraint("Coincident", 3, 2, 0, 1))
sketch9.addConstraint(Sketcher.Constraint("Vertical", 0))
sketch9.addConstraint(Sketcher.Constraint("Horizontal", 1))
sketch9.addConstraint(Sketcher.Constraint("Vertical", 2))
sketch9.addConstraint(Sketcher.Constraint("Horizontal", 3))
sketch9.addConstraint(Sketcher.Constraint("DistanceX", 1, 1, 1, 2, Q("0.25 in")))
sketch9.addConstraint(Sketcher.Constraint("DistanceY", -1, 1, 2, 2, Q("0.5 in")))
sketch9.addConstraint(Sketcher.Constraint("DistanceY", 0, 2, 0, 1, Q("0.0625 in")))
sketch9.addConstraint(Sketcher.Constraint("DistanceX", 0, 2, -1, 1, Q("1.3125 in")))
pocket8 = body.newObject("PartDesign::Pocket", "Pocket007")
pocket8.Profile = sketch9
pocket8.Type = "UpToFirst"

# Sketch on XY plane
sketch10 = body.newObject("Sketcher::SketchObject", "Sketch009")
sketch10.AttachmentSupport = (doc.getObject("XY_Plane"), [""])
sketch10.MapMode = "FlatFace"
sketch10.AttachmentOffset = App.Placement(App.Vector(0, 0, 3 * 25.4), App.Rotation())
sketch10.addGeometry(Part.LineSegment(App.Vector(-11.1125, 12.7, 0), App.Vector(-11.1125, 11.1125, 0)), False)
sketch10.addGeometry(Part.LineSegment(App.Vector(-11.1125, 11.1125, 0), App.Vector(-4.7625, 11.1125, 0)), False)
sketch10.addGeometry(Part.LineSegment(App.Vector(-4.7625, 11.1125, 0), App.Vector(-4.7625, 12.7, 0)), False)
sketch10.addGeometry(Part.LineSegment(App.Vector(-4.7625, 12.7, 0), App.Vector(-11.1125, 12.7, 0)), False)
sketch10.addConstraint(Sketcher.Constraint("Coincident", 0, 2, 1, 1))
sketch10.addConstraint(Sketcher.Constraint("Coincident", 1, 2, 2, 1))
sketch10.addConstraint(Sketcher.Constraint("Coincident", 2, 2, 3, 1))
sketch10.addConstraint(Sketcher.Constraint("Coincident", 3, 2, 0, 1))
sketch10.addConstraint(Sketcher.Constraint("Vertical", 0))
sketch10.addConstraint(Sketcher.Constraint("Horizontal", 1))
sketch10.addConstraint(Sketcher.Constraint("Vertical", 2))
sketch10.addConstraint(Sketcher.Constraint("Horizontal", 3))
sketch10.addConstraint(Sketcher.Constraint("DistanceX", 1, 1, 1, 2, Q("0.25 in")))
sketch10.addConstraint(Sketcher.Constraint("DistanceY", -1, 1, 2, 2, Q("0.5 in")))
sketch10.addConstraint(Sketcher.Constraint("DistanceY", 0, 2, 0, 1, Q("0.0625 in")))
sketch10.addConstraint(Sketcher.Constraint("DistanceX", 0, 2, -1, 1, Q("0.4375 in")))
pocket9 = body.newObject("PartDesign::Pocket", "Pocket008")
pocket9.Profile = sketch10
pocket9.Type = "UpToFirst"

# Sketch on XY plane
sketch11 = body.newObject("Sketcher::SketchObject", "Sketch010")
sketch11.AttachmentSupport = (doc.getObject("XY_Plane"), [""])
sketch11.MapMode = "FlatFace"
sketch11.addGeometry(Part.LineSegment(App.Vector(-30.95625, 12.7, 0), App.Vector(-30.95625, 11.1125, 0)), False)
sketch11.addGeometry(Part.LineSegment(App.Vector(-30.95625, 11.1125, 0), App.Vector(-35.71875, 11.1125, 0)), False)
sketch11.addGeometry(Part.LineSegment(App.Vector(-35.71875, 11.1125, 0), App.Vector(-35.71875, 12.7, 0)), False)
sketch11.addGeometry(Part.LineSegment(App.Vector(-35.71875, 12.7, 0), App.Vector(-30.95625, 12.7, 0)), False)
sketch11.addGeometry(Part.LineSegment(App.Vector(-2.38125, 12.7, 0), App.Vector(-2.38125, 11.1125, 0)), False)
sketch11.addGeometry(Part.LineSegment(App.Vector(-2.38125, 11.1125, 0), App.Vector(-7.14375, 11.1125, 0)), False)
sketch11.addGeometry(Part.LineSegment(App.Vector(-7.14375, 11.1125, 0), App.Vector(-7.14375, 12.7, 0)), False)
sketch11.addGeometry(Part.LineSegment(App.Vector(-7.14375, 12.7, 0), App.Vector(-2.38125, 12.7, 0)), False)
sketch11.addConstraint(Sketcher.Constraint("Coincident", 0, 2, 1, 1))
sketch11.addConstraint(Sketcher.Constraint("Coincident", 1, 2, 2, 1))
sketch11.addConstraint(Sketcher.Constraint("Coincident", 2, 2, 3, 1))
sketch11.addConstraint(Sketcher.Constraint("Coincident", 3, 2, 0, 1))
sketch11.addConstraint(Sketcher.Constraint("Coincident", 4, 2, 5, 1))
sketch11.addConstraint(Sketcher.Constraint("Coincident", 5, 2, 6, 1))
sketch11.addConstraint(Sketcher.Constraint("Coincident", 6, 2, 7, 1))
sketch11.addConstraint(Sketcher.Constraint("Coincident", 7, 2, 4, 1))
sketch11.addConstraint(Sketcher.Constraint("Vertical", 0))
sketch11.addConstraint(Sketcher.Constraint("Horizontal", 1))
sketch11.addConstraint(Sketcher.Constraint("Vertical", 2))
sketch11.addConstraint(Sketcher.Constraint("Horizontal", 3))
sketch11.addConstraint(Sketcher.Constraint("Vertical", 4))
sketch11.addConstraint(Sketcher.Constraint("Horizontal", 5))
sketch11.addConstraint(Sketcher.Constraint("Vertical", 6))
sketch11.addConstraint(Sketcher.Constraint("Horizontal", 7))
sketch11.addConstraint(Sketcher.Constraint("Horizontal", 1, 2, 4, 2))
sketch11.addConstraint(Sketcher.Constraint("Horizontal", 3, 2, 6, 2))
sketch11.addConstraint(Sketcher.Constraint("Equal", 3, 5))
sketch11.addConstraint(Sketcher.Constraint("DistanceY", -1, 1, 2, 2, Q("0.5 in")))
sketch11.addConstraint(Sketcher.Constraint("DistanceX", 1, 2, 1, 1, Q("0.1875 in")))
sketch11.addConstraint(Sketcher.Constraint("DistanceY", 0, 2, 0, 1, Q("0.0625 in")))
sketch11.addConstraint(Sketcher.Constraint("DistanceX", 0, 2, -1, 1, Q("1.21875 in")))
sketch11.addConstraint(Sketcher.Constraint("DistanceX", 4, 2, -1, 1, Q("0.09375 in")))
pocket10 = body.newObject("PartDesign::Pocket", "Pocket009")
pocket10.Profile = sketch11
pocket10.Length = Q("0.0625 in")
pocket10.Reversed = True

doc.recompute()
